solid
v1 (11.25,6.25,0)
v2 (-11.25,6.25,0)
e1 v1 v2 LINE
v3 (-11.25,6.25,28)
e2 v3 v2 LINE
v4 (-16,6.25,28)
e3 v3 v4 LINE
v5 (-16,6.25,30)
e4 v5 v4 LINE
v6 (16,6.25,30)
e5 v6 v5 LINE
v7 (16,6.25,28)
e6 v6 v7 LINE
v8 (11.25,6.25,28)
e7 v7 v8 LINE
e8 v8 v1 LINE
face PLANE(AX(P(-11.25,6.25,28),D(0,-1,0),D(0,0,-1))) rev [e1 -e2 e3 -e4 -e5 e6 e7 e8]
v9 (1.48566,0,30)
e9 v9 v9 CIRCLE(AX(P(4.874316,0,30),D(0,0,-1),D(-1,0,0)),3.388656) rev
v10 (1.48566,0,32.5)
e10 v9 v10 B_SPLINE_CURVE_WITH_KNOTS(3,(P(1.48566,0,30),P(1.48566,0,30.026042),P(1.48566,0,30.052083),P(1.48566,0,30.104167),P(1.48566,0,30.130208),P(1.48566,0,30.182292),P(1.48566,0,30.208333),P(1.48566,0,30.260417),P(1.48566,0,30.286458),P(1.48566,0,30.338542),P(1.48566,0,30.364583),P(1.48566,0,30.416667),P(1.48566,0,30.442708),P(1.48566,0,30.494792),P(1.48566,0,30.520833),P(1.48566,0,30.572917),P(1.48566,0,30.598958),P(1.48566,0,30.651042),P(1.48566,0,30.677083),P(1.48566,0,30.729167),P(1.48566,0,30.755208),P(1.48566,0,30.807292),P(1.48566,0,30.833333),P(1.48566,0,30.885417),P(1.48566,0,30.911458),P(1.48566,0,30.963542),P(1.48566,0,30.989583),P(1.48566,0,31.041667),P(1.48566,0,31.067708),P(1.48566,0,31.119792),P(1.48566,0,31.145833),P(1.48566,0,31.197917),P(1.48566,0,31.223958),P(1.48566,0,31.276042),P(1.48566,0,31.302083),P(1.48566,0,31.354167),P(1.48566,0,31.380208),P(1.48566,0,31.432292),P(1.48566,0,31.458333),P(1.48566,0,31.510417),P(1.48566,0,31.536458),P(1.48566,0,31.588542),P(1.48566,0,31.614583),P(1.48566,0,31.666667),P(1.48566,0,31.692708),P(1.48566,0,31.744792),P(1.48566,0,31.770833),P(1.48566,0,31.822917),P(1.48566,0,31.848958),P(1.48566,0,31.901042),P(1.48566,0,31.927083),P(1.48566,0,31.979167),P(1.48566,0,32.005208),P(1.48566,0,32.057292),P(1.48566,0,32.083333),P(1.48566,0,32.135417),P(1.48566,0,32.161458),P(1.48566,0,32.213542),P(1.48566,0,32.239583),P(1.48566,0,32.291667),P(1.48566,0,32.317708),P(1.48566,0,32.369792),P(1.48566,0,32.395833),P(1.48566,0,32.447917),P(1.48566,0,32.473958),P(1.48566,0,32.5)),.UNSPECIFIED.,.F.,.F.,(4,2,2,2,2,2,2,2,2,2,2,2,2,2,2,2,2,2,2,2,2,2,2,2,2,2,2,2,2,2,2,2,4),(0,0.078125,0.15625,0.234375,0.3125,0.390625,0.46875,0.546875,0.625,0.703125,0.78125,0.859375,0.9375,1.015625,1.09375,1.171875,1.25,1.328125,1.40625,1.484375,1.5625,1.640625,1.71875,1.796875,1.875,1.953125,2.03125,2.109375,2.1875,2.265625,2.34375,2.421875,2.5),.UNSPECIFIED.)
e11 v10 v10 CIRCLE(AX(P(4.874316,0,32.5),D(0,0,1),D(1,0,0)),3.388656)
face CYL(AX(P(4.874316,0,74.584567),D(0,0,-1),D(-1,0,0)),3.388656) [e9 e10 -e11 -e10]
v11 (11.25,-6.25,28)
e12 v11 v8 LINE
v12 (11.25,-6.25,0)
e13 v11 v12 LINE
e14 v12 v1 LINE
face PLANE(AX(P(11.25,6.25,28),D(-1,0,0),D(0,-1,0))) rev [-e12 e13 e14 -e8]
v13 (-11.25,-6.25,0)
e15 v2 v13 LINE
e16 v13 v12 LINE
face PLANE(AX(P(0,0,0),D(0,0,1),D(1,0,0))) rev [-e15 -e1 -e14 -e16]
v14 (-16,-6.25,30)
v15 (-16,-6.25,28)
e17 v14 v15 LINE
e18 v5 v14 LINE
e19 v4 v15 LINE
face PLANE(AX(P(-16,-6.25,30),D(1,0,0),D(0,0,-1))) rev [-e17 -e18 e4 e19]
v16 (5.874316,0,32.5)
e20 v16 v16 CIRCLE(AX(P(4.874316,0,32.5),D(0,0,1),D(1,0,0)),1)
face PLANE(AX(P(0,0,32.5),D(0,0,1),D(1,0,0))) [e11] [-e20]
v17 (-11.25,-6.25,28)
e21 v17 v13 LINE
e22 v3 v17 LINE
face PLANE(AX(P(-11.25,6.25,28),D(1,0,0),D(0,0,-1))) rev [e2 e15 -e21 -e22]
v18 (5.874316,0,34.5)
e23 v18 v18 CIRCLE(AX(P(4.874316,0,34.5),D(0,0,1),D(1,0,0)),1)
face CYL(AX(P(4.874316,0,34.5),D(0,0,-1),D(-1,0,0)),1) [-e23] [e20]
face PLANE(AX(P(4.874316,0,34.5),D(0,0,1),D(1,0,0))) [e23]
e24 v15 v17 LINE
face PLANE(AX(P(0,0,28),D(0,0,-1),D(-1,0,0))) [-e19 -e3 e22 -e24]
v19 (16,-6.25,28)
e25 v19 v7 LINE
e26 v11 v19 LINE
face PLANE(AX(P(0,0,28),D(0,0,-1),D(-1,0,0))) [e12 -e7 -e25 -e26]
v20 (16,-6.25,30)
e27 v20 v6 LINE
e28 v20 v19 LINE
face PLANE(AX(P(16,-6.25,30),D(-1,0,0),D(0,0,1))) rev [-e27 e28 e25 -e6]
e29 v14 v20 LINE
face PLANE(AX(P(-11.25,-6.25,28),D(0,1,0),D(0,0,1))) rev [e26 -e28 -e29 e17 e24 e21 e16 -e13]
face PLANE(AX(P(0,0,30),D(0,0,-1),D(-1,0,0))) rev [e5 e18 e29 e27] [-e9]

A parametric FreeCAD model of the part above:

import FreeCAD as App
import Part
import Sketcher

V = App.Vector
Q = App.Units.Quantity

doc = App.newDocument("Part")
body = doc.addObject("PartDesign::Body", "Body")

# Sketch on XY plane
sketch1 = body.newObject("Sketcher::SketchObject", "Sketch")
sketch1.AttachmentSupport = (doc.getObject("XY_Plane"), [""])
sketch1.MapMode = "FlatFace"
sketch1.addGeometry([
    Part.LineSegment(V(-11, 6, 0), V(-11, -6, 0)),
    Part.LineSegment(V(-11, -6, 0), V(11, -6, 0)),
    Part.LineSegment(V(11, -6, 0), V(11, 6, 0)),
    Part.LineSegment(V(11, 6, 0), V(-11, 6, 0)),
], False)
sketch1.addConstraint([
    Sketcher.Constraint("Coincident", 0, 2, 1, 1),
    Sketcher.Constraint("Coincident", 1, 2, 2, 1),
    Sketcher.Constraint("Coincident", 2, 2, 3, 1),
    Sketcher.Constraint("Coincident", 3, 2, 0, 1),
    Sketcher.Constraint("Vertical", 0),
    Sketcher.Constraint("Horizontal", 1),
    Sketcher.Constraint("Vertical", 2),
    Sketcher.Constraint("Horizontal", 3),
    Sketcher.Constraint("Symmetric", 0, 2, 2, 2, -1, 1),
    Sketcher.Constraint("DistanceX", 1, 1, 1, 2, Q("22.5 mm")),
    Sketcher.Constraint("DistanceY", 0, 2, 0, 1, Q("12.5 mm")),
])
pad1 = body.newObject("PartDesign::Pad", "Pad")
pad1.Profile = sketch1
pad1.Length = 28

# Sketch on XY plane
sketch2 = body.newObject("Sketcher::SketchObject", "Sketch001")
sketch2.AttachmentSupport = (doc.getObject("XY_Plane"), [""])
sketch2.MapMode = "FlatFace"
sketch2.AttachmentOffset = App.Placement(V(0, 0, 28), App.Rotation())
sketch2.addGeometry([
    Part.LineSegment(V(-16, 6, 0), V(-16, -6, 0)),
    Part.LineSegment(V(-16, -6, 0), V(16, -6, 0)),
    Part.LineSegment(V(16, -6, 0), V(16, 6, 0)),
    Part.LineSegment(V(16, 6, 0), V(-16, 6, 0)),
], False)
sketch2.addConstraint([
    Sketcher.Constraint("Coincident", 0, 2, 1, 1),
    Sketcher.Constraint("Coincident", 1, 2, 2, 1),
    Sketcher.Constraint("Coincident", 2, 2, 3, 1),
    Sketcher.Constraint("Coincident", 3, 2, 0, 1),
    Sketcher.Constraint("Vertical", 0),
    Sketcher.Constraint("Horizontal", 1),
    Sketcher.Constraint("Vertical", 2),
    Sketcher.Constraint("Horizontal", 3),
    Sketcher.Constraint("Symmetric", 0, 2, 2, 2, -1, 1),
    Sketcher.Constraint("DistanceX", 1, 1, 1, 2, Q("32 mm")),
    Sketcher.Constraint("DistanceY", 0, 2, 0, 1, Q("12.5 mm")),
])
pad2 = body.newObject("PartDesign::Pad", "Pad001")
pad2.Profile = sketch2
pad2.Length = 2

# Sketch on XY plane
sketch3 = body.newObject("Sketcher::SketchObject", "Sketch002")
sketch3.AttachmentSupport = (doc.getObject("XY_Plane"), [""])
sketch3.MapMode = "FlatFace"
sketch3.AttachmentOffset = App.Placement(V(0, 0, 30), App.Rotation())
sketch3.addGeometry(Part.Circle(V(4.9, 0, 0), V(0, 0, 1), 3.4), False)
sketch3.addConstraint([
    Sketcher.Constraint("PointOnObject", 0, 3, -1),
    Sketcher.Constraint("Diameter", 0, Q("6.777312 mm")),
    Sketcher.Constraint("DistanceX", -1, 1, 0, 3, Q("4.874316 mm")),
])
pad3 = body.newObject("PartDesign::Pad", "Pad002")
pad3.Profile = sketch3
pad3.Length = 2.5

# Sketch on XY plane
sketch4 = body.newObject("Sketcher::SketchObject", "Sketch003")
sketch4.AttachmentSupport = (doc.getObject("XY_Plane"), [""])
sketch4.MapMode = "FlatFace"
sketch4.AttachmentOffset = App.Placement(V(0, 0, 32.5), App.Rotation())
sketch4.addGeometry(Part.Circle(V(4.9, 0, 0), V(0, 0, 1), 1), False)
sketch4.addConstraint([
    Sketcher.Constraint("PointOnObject", 0, 3, -1),
    Sketcher.Constraint("Diameter", 0, Q("2 mm")),
    Sketcher.Constraint("DistanceX", -1, 1, 0, 3, Q("4.874316 mm")),
])
pad4 = body.newObject("PartDesign::Pad", "Pad003")
pad4.Profile = sketch4
pad4.Length = 2

doc.recompute()
